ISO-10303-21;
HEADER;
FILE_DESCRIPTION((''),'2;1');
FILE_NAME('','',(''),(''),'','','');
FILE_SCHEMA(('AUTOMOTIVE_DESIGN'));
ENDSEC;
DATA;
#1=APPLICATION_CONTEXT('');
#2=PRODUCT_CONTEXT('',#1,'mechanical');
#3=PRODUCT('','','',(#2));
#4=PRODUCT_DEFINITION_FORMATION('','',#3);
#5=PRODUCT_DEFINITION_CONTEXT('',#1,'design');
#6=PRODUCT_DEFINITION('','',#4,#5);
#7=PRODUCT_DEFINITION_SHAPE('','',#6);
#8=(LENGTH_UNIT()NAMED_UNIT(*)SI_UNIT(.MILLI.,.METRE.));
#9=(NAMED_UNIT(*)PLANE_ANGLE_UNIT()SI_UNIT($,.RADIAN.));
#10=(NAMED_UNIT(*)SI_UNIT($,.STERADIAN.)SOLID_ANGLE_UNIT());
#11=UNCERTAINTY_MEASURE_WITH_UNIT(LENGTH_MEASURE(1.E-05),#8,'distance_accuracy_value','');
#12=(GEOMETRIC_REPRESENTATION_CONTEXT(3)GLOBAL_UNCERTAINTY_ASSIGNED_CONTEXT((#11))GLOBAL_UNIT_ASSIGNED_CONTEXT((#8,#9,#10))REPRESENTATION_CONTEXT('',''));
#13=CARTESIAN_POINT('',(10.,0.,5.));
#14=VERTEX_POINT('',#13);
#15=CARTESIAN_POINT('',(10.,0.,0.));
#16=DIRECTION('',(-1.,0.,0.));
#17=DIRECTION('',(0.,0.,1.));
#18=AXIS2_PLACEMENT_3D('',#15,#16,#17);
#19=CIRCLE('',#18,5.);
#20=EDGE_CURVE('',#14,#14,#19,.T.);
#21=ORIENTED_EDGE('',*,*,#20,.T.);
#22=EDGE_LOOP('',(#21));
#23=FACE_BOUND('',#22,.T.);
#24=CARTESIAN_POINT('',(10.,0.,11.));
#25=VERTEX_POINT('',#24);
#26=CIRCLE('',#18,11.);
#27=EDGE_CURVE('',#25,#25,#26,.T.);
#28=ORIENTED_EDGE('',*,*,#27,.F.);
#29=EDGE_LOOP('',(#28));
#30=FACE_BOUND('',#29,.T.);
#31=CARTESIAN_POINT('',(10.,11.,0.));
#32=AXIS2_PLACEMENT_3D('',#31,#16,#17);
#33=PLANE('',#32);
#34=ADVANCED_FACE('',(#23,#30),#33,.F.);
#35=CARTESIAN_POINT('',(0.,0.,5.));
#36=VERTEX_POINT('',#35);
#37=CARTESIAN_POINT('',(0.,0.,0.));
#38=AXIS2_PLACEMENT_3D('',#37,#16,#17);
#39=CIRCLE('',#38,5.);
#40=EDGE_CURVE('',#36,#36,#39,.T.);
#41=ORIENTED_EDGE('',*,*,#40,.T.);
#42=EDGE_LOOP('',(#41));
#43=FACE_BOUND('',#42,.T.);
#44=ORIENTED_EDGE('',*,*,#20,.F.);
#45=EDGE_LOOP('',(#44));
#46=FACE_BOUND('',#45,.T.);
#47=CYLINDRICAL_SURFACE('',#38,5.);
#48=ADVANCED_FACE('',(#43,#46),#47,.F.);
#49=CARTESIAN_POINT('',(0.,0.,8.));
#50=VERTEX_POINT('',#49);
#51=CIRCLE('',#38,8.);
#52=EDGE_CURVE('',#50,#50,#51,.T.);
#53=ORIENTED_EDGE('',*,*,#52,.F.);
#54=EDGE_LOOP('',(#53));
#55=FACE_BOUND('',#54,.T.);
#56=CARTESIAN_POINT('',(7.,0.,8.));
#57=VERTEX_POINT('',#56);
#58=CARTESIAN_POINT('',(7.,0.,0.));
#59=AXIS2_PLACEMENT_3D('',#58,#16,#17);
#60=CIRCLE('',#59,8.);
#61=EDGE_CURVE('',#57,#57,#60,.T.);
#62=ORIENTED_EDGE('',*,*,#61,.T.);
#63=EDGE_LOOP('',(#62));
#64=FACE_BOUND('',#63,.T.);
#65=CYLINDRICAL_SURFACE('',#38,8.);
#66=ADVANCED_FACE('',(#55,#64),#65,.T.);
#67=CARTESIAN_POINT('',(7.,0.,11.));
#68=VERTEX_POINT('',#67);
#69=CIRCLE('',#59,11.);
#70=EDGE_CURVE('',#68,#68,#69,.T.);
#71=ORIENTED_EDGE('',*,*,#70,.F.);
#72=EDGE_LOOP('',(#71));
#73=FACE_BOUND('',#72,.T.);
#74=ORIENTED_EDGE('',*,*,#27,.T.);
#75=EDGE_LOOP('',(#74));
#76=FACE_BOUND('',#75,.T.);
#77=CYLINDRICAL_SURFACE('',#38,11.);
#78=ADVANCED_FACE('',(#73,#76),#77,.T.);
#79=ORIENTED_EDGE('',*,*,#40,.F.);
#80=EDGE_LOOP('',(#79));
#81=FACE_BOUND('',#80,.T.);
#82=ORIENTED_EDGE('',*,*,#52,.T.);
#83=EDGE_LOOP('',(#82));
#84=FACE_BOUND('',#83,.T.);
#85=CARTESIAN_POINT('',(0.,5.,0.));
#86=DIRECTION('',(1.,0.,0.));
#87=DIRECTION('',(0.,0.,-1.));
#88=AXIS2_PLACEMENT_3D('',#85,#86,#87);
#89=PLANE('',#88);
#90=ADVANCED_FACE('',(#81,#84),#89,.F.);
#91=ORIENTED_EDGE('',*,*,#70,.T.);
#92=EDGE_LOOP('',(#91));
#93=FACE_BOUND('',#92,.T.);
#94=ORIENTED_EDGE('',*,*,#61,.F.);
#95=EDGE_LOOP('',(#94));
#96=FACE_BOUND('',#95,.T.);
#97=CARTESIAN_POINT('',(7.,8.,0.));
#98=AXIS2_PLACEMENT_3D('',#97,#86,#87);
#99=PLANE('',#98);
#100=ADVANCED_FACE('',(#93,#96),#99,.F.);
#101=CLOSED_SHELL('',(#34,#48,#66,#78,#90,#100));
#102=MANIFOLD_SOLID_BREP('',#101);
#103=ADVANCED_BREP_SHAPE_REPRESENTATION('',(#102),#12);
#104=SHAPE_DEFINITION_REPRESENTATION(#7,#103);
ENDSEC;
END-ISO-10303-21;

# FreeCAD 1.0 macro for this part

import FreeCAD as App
import Part
import Sketcher
Q = App.Units.Quantity

doc = App.newDocument("Part")
body = doc.addObject("PartDesign::Body", "Body")

# Sketch on XY plane
sketch1 = doc.addObject("Sketcher::SketchObject", "Sketch")
body.addObject(sketch1)
sketch1.AttachmentSupport = (doc.XY_Plane, [""])
sketch1.MapMode = "FlatFace"
sketch1.addGeometry([
    Part.LineSegment(App.Vector(7, 8, 0), App.Vector(0, 8, 0)),  # 0
    Part.LineSegment(App.Vector(0, 8, 0), App.Vector(0, 5, 0)),  # 1
    Part.LineSegment(App.Vector(0, 5, 0), App.Vector(10, 5, 0)),  # 2
    Part.LineSegment(App.Vector(10, 5, 0), App.Vector(10, 11, 0)),  # 3
    Part.LineSegment(App.Vector(10, 11, 0), App.Vector(7, 11, 0)),  # 4
    Part.LineSegment(App.Vector(7, 11, 0), App.Vector(7, 8, 0)),  # 5
], False)
sketch1.addConstraint([
    Sketcher.Constraint("Coincident", 0, 2, 1, 1),
    Sketcher.Constraint("Coincident", 1, 2, 2, 1),
    Sketcher.Constraint("Coincident", 2, 2, 3, 1),
    Sketcher.Constraint("Coincident", 3, 2, 4, 1),
    Sketcher.Constraint("Coincident", 4, 2, 5, 1),
    Sketcher.Constraint("Coincident", 5, 2, 0, 1),
    Sketcher.Constraint("Horizontal", 0),
    Sketcher.Constraint("Vertical", 1),
    Sketcher.Constraint("Horizontal", 2),
    Sketcher.Constraint("Vertical", 3),
    Sketcher.Constraint("Horizontal", 4),
    Sketcher.Constraint("Vertical", 5),
    Sketcher.Constraint("PointOnObject", 0, 2, -2),
    Sketcher.Constraint("Equal", 4, 1),
    Sketcher.Constraint("Equal", 1, 5),
    Sketcher.Constraint("DistanceX", 0, 2, 0, 1, Q("7 mm")),
    Sketcher.Constraint("DistanceX", 2, 1, 2, 2, Q("10 mm")),
    Sketcher.Constraint("DistanceY", -1, 1, 0, 2, Q("8 mm")),
])
revolution = doc.addObject("PartDesign::Revolution", "Revolution")
body.addObject(revolution)
revolution.Profile = sketch1
revolution.ReferenceAxis = (sketch1, ["H_Axis"])
revolution.Angle = 360

doc.recompute()
